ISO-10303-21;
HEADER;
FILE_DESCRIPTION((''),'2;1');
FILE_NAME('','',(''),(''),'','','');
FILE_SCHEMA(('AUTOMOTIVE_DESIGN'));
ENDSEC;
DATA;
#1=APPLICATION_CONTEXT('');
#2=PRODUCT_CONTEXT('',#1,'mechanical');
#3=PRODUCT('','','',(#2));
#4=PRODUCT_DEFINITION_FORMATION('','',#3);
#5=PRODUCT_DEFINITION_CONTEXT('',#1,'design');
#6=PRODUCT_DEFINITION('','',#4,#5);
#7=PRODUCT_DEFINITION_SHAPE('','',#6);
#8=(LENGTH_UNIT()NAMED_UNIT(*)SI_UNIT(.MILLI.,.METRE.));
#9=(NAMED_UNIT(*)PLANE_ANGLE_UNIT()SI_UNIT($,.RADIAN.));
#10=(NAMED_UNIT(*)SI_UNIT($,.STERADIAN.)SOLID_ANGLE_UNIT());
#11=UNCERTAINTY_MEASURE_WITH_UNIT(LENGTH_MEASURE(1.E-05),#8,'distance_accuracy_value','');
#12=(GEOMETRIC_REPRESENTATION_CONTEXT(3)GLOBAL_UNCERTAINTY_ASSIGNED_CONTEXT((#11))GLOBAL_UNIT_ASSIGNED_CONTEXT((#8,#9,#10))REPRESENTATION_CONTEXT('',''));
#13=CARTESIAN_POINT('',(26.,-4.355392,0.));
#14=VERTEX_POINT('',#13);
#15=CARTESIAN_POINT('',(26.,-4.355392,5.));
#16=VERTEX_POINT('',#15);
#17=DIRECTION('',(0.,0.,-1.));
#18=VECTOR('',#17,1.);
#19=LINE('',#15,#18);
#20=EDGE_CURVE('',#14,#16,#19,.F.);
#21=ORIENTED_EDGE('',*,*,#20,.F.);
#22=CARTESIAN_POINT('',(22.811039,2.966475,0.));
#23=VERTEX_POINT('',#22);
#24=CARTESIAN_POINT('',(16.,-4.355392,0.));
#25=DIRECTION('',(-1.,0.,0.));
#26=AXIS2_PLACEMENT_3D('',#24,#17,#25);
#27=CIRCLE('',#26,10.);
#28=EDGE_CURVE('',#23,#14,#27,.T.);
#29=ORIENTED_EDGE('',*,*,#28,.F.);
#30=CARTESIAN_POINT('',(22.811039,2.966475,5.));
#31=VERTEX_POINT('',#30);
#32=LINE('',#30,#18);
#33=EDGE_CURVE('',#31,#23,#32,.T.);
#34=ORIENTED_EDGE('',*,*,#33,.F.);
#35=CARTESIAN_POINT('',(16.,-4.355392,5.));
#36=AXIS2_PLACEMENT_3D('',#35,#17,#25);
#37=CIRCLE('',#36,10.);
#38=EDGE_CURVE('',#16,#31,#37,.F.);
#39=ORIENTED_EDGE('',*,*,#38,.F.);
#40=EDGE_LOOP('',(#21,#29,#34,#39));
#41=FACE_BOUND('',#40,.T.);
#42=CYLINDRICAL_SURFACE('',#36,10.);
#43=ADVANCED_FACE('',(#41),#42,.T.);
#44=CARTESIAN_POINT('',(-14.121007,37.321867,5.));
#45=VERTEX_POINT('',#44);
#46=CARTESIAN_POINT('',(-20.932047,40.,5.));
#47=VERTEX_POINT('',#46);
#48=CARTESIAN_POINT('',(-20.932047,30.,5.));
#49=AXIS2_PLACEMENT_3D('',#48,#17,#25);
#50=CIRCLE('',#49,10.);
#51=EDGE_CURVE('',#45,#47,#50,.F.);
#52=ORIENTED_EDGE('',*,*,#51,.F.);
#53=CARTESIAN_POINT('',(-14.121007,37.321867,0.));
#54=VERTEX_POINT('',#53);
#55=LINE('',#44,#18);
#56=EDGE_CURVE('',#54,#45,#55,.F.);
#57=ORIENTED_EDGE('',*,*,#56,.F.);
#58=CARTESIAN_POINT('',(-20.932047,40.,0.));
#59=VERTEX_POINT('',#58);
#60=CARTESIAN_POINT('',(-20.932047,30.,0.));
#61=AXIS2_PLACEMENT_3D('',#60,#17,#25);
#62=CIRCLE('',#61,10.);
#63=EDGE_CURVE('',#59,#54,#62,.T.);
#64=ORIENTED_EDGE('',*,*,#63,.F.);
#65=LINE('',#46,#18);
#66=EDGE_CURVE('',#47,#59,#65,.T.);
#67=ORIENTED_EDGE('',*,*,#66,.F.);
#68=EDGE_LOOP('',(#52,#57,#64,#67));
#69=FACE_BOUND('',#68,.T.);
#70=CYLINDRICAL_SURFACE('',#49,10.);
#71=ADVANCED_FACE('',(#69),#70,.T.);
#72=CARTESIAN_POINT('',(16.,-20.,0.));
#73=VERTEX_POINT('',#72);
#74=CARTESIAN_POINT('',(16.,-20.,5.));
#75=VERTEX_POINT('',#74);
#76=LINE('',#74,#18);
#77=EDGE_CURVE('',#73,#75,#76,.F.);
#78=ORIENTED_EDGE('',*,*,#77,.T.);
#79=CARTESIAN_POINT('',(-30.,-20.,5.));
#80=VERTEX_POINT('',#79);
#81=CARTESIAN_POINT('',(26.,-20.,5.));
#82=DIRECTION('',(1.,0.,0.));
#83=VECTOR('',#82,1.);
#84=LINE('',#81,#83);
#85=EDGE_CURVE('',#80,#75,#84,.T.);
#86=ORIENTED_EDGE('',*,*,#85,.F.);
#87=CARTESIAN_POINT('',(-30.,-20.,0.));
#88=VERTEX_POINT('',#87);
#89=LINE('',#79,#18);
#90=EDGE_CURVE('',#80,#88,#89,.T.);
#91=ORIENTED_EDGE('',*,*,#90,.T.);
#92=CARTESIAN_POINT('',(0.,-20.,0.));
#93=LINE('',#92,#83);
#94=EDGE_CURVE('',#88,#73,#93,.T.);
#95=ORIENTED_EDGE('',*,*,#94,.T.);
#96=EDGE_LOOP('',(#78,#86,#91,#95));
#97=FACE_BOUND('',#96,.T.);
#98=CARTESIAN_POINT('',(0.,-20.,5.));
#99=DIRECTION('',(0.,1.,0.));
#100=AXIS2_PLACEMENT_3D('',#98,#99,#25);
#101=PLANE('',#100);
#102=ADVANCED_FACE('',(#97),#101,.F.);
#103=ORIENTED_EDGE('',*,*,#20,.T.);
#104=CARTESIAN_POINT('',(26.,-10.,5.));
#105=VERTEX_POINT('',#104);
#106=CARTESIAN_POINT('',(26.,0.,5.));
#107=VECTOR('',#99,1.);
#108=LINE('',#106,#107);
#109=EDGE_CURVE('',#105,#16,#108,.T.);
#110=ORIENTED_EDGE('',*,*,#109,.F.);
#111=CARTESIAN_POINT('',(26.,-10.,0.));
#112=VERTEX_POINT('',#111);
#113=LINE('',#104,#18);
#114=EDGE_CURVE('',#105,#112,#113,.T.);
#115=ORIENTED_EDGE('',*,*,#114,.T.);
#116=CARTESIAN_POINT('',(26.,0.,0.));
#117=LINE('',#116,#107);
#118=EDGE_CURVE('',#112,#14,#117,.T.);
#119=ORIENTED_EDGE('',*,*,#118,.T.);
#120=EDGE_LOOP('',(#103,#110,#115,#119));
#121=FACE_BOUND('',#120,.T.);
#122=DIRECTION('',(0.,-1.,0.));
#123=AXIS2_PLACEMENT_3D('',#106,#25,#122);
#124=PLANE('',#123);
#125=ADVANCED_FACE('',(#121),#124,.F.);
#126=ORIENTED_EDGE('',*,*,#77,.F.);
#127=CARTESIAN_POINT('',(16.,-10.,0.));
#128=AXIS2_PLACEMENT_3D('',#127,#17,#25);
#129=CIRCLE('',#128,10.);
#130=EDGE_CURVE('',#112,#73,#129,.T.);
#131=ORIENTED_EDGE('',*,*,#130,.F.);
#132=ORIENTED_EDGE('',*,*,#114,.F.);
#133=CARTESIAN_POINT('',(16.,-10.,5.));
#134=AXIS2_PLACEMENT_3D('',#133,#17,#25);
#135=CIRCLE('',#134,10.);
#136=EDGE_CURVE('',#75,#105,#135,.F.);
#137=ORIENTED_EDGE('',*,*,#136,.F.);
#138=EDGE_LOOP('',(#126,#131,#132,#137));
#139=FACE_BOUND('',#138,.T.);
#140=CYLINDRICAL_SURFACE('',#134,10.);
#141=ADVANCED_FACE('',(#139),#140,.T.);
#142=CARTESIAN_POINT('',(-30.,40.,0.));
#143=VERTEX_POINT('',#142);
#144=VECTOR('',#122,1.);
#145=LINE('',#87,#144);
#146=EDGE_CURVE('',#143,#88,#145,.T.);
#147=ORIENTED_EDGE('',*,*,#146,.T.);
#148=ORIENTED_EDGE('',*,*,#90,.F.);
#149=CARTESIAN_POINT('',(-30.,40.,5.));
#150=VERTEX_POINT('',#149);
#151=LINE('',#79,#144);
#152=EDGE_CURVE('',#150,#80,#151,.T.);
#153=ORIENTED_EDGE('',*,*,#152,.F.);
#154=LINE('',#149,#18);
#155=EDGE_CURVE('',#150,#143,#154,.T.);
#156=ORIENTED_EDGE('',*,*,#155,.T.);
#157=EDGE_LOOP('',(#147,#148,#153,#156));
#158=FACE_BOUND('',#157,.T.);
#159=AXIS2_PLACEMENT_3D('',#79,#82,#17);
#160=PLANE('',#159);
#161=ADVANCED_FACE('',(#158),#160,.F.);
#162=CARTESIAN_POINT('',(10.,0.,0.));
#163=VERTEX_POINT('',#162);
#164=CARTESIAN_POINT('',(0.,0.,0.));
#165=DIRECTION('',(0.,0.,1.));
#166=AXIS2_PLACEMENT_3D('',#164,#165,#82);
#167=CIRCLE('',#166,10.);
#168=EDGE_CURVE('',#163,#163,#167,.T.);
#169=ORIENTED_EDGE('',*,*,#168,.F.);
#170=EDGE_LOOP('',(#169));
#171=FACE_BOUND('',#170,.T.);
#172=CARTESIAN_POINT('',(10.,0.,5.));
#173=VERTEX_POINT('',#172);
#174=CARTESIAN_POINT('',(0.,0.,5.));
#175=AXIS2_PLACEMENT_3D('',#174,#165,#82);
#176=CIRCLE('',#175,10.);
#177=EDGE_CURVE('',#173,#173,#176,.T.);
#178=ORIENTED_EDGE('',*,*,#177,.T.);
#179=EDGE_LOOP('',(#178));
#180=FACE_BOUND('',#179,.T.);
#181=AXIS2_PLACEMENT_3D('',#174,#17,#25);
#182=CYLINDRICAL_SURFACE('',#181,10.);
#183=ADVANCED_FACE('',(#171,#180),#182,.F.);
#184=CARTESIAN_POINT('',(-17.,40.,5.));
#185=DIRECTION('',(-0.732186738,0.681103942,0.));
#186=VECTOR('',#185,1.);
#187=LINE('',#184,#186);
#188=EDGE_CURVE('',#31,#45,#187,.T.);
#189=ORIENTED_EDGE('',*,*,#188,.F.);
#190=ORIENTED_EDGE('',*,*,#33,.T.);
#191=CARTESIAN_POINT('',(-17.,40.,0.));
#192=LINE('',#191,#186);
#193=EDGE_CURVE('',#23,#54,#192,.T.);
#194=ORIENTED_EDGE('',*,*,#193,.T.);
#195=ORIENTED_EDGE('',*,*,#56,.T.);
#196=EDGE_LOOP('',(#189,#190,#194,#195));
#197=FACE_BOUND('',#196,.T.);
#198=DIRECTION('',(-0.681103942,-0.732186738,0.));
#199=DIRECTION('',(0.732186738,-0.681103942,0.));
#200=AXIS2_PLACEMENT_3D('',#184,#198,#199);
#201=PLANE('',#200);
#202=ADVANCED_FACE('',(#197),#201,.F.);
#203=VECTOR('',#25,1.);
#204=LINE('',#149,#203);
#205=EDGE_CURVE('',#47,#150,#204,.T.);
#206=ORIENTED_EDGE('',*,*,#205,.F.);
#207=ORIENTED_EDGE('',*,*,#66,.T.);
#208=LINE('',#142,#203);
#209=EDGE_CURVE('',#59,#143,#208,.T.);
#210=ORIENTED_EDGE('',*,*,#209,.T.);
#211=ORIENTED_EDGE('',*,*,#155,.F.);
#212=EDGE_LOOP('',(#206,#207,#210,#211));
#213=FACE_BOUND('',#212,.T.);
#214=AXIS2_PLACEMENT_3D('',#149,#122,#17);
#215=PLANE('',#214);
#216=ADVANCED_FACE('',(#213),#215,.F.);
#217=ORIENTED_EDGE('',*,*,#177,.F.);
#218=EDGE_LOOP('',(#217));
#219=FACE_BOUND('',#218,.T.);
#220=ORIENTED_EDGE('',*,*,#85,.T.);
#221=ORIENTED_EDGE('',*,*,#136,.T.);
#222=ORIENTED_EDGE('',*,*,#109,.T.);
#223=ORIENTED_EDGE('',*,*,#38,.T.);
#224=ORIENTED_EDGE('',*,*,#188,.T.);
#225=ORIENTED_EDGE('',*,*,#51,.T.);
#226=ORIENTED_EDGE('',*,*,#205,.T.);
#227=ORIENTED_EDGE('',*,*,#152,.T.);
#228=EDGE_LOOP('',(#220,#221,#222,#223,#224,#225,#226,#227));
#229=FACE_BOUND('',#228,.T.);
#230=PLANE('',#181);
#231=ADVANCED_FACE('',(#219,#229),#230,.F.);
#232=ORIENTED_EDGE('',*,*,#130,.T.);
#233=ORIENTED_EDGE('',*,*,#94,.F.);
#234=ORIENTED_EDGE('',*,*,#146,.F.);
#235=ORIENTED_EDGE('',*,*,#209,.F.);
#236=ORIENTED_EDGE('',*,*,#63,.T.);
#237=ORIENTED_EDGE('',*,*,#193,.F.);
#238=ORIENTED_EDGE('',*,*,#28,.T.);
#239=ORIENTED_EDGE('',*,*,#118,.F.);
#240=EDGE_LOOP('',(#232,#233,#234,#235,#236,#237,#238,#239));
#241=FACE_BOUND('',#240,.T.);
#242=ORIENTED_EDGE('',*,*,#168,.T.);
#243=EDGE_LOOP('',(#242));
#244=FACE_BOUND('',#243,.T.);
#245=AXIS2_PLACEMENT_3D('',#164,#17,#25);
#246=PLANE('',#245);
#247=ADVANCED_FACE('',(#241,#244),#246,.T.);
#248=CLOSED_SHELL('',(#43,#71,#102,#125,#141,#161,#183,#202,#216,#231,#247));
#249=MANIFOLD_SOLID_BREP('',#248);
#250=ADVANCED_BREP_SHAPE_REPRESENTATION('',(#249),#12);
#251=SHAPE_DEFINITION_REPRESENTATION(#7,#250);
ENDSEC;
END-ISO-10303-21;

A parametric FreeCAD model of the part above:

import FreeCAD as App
import Part
import Sketcher
from FreeCAD import Vector


def edges_at(feature, points):
    """Names of the edges that pass closest to the given points."""
    edges = feature.Shape.Edges
    near = lambda p: min(range(len(edges)), key=lambda i: edges[i].distToShape(Part.Vertex(*p))[0])
    return sorted({f"Edge{near(p) + 1}" for p in points})


def add_polygon(sketch, points):
    """Adds a closed chain of lines whose ends are joined by coincident constraints."""
    first, n = sketch.GeometryCount, len(points)
    for a, b in zip(points, points[1:] + points[:1]):
        sketch.addGeometry(Part.LineSegment(App.Vector(*a, 0), App.Vector(*b, 0)), False)
    for i in range(n):
        sketch.addConstraint(Sketcher.Constraint("Coincident", first + i, 2, first + (i + 1) % n, 1))

doc = App.newDocument("Part")
body = doc.addObject("PartDesign::Body", "Body")

# Sketch on XY plane
sketch1 = body.newObject("Sketcher::SketchObject", "Sketch")
sketch1.AttachmentSupport = (doc.getObject("XY_Plane"), [""])
sketch1.MapMode = "FlatFace"
add_polygon(sketch1, [(-30, -20), (26, -20), (26, 0), (-17, 40), (-30, 40)])  # lines 0-4
sketch1.addGeometry(Part.Circle(Vector(0, 0, 0), Vector(0, 0, 1), 10), False)  # 5
sketch1.addConstraint([
    Sketcher.Constraint("Horizontal", 0),
    Sketcher.Constraint("Vertical", 1),
    Sketcher.Constraint("Horizontal", 3),
    Sketcher.Constraint("Vertical", 4),
    Sketcher.Constraint("Coincident", 5, 3, -1, 1),
    Sketcher.Constraint("PointOnObject", 1, 2, -1),
    Sketcher.Constraint("Diameter", 5, 20.0),
    Sketcher.Constraint("DistanceX", 0, 1, 0, 2, 56.0),
    Sketcher.Constraint("DistanceX", 3, 2, 3, 1, 13.0),
    Sketcher.Constraint("DistanceY", 1, 1, 1, 2, 20.0),
    Sketcher.Constraint("DistanceY", 4, 2, 4, 1, 60.0),
    Sketcher.Constraint("DistanceX", -1, 1, 0, 2, 26.0),
])
pad1 = body.newObject("PartDesign::Pad", "Pad")
pad1.Profile = sketch1
pad1.Length = 5
doc.recompute()

fillet = body.newObject("PartDesign::Fillet", "Fillet")
fillet.Base = (pad1, edges_at(pad1, [(-17, 40, 2.5), (26, 0, 2.5), (26, -20, 2.5)]))
fillet.Radius = 10

doc.recompute()
